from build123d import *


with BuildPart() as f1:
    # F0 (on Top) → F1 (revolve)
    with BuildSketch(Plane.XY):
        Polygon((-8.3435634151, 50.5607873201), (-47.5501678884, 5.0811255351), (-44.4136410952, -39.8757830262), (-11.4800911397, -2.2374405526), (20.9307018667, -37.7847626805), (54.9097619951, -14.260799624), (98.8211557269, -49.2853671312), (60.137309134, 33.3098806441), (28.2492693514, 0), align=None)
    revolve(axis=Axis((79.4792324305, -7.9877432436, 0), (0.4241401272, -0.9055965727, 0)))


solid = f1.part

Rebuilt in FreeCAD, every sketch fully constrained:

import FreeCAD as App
import Part
import Sketcher
from FreeCAD import Vector
Q = App.Units.Quantity


def add_polygon(sketch, points):
    """Adds a closed chain of lines whose ends are joined by coincident constraints."""
    first, n = sketch.GeometryCount, len(points)
    for a, b in zip(points, points[1:] + points[:1]):
        sketch.addGeometry(Part.LineSegment(App.Vector(*a, 0), App.Vector(*b, 0)), False)
    for i in range(n):
        sketch.addConstraint(Sketcher.Constraint("Coincident", first + i, 2, first + (i + 1) % n, 1))

doc = App.newDocument("Part")
params = doc.addObject("Spreadsheet::Sheet", "Params")
for row, (alias, value) in enumerate([
    ("revolution_angle", "360 deg"),
], start=1):
    params.set(f"A{row}", alias)
    params.set(f"B{row}", "=" + value)
    params.setAlias(f"B{row}", alias)

body = doc.addObject("PartDesign::Body", "Body")

# Sketch on XY plane
sketch1 = body.newObject("Sketcher::SketchObject", "Sketch")
sketch1.AttachmentSupport = (doc.getObject("XY_Plane"), [""])
sketch1.MapMode = "FlatFace"
add_polygon(sketch1, [(-8, 51), (-48, 5), (-44, -40), (-11, -2), (21, -38), (55, -14), (99, -49), (60, 33), (28, 0)])  # lines 0-8
sketch1.addGeometry(Part.LineSegment(Vector(41, 74, 0), Vector(99, -49, 0)), True)  # axis
sketch1.addConstraint(Sketcher.Constraint("Coincident", 9, 2, 5, 2))
sketch1.addConstraint(Sketcher.Constraint("PointOnObject", 7, 2, -1))
sketch1.addConstraint(Sketcher.Constraint("Parallel", 6, 9))
sketch1.addConstraint(Sketcher.Constraint("Distance", 3, Q("48.104798 mm")))
sketch1.addConstraint(Sketcher.Constraint("DistanceX", -1, 1, 3, 2, Q("20.930702 mm")))
sketch1.addConstraint(Sketcher.Constraint("DistanceY", 4, 2, -1, 1, Q("14.2608 mm")))
sketch1.addConstraint(Sketcher.Constraint("DistanceX", 2, 2, 6, 2, Q("71.6174 mm")))
sketch1.addConstraint(Sketcher.Constraint("Distance", 1, Q("45.066189 mm")))
sketch1.addConstraint(Sketcher.Constraint("Distance", 5, Q("56.168771 mm")))
sketch1.addConstraint(Sketcher.Constraint("Distance", 8, Q("62.413369 mm")))
sketch1.addConstraint(Sketcher.Constraint("DistanceX", 1, 2, -1, 1, Q("44.413641 mm")))
sketch1.addConstraint(Sketcher.Constraint("DistanceX", 2, 2, -1, 1, Q("11.480091 mm")))
sketch1.addConstraint(Sketcher.Constraint("DistanceY", 2, 2, -1, 1, Q("2.237441 mm")))
sketch1.addConstraint(Sketcher.Constraint("DistanceX", -1, 1, 4, 2, Q("54.909762 mm")))
sketch1.addConstraint(Sketcher.Constraint("DistanceY", -1, 1, 6, 2, Q("33.309881 mm")))
sketch1.addConstraint(Sketcher.Constraint("DistanceX", -1, 1, 7, 2, Q("28.249269 mm")))
sketch1.addConstraint(Sketcher.Constraint("DistanceY", -1, 1, 9, 1, Q("73.760931 mm")))
sketch1.addConstraint(Sketcher.Constraint("DistanceY", 1, 2, 0, 2, Q("44.956909 mm")))
sketch1.addConstraint(Sketcher.Constraint("DistanceY", 1, 2, 3, 2, Q("2.09102 mm")))
sketch1.addConstraint(Sketcher.Constraint("DistanceY", 0, 2, 8, 2, Q("45.479662 mm")))
sketch1.addConstraint(Sketcher.Constraint("DistanceX", 9, 1, 4, 2, Q("13.71788 mm")))
revolution = body.newObject("PartDesign::Revolution", "Revolution")
revolution.Profile = sketch1
revolution.ReferenceAxis = (sketch1, ["Axis0"])
revolution.setExpression("Angle", "Params.revolution_angle")

doc.recompute()
